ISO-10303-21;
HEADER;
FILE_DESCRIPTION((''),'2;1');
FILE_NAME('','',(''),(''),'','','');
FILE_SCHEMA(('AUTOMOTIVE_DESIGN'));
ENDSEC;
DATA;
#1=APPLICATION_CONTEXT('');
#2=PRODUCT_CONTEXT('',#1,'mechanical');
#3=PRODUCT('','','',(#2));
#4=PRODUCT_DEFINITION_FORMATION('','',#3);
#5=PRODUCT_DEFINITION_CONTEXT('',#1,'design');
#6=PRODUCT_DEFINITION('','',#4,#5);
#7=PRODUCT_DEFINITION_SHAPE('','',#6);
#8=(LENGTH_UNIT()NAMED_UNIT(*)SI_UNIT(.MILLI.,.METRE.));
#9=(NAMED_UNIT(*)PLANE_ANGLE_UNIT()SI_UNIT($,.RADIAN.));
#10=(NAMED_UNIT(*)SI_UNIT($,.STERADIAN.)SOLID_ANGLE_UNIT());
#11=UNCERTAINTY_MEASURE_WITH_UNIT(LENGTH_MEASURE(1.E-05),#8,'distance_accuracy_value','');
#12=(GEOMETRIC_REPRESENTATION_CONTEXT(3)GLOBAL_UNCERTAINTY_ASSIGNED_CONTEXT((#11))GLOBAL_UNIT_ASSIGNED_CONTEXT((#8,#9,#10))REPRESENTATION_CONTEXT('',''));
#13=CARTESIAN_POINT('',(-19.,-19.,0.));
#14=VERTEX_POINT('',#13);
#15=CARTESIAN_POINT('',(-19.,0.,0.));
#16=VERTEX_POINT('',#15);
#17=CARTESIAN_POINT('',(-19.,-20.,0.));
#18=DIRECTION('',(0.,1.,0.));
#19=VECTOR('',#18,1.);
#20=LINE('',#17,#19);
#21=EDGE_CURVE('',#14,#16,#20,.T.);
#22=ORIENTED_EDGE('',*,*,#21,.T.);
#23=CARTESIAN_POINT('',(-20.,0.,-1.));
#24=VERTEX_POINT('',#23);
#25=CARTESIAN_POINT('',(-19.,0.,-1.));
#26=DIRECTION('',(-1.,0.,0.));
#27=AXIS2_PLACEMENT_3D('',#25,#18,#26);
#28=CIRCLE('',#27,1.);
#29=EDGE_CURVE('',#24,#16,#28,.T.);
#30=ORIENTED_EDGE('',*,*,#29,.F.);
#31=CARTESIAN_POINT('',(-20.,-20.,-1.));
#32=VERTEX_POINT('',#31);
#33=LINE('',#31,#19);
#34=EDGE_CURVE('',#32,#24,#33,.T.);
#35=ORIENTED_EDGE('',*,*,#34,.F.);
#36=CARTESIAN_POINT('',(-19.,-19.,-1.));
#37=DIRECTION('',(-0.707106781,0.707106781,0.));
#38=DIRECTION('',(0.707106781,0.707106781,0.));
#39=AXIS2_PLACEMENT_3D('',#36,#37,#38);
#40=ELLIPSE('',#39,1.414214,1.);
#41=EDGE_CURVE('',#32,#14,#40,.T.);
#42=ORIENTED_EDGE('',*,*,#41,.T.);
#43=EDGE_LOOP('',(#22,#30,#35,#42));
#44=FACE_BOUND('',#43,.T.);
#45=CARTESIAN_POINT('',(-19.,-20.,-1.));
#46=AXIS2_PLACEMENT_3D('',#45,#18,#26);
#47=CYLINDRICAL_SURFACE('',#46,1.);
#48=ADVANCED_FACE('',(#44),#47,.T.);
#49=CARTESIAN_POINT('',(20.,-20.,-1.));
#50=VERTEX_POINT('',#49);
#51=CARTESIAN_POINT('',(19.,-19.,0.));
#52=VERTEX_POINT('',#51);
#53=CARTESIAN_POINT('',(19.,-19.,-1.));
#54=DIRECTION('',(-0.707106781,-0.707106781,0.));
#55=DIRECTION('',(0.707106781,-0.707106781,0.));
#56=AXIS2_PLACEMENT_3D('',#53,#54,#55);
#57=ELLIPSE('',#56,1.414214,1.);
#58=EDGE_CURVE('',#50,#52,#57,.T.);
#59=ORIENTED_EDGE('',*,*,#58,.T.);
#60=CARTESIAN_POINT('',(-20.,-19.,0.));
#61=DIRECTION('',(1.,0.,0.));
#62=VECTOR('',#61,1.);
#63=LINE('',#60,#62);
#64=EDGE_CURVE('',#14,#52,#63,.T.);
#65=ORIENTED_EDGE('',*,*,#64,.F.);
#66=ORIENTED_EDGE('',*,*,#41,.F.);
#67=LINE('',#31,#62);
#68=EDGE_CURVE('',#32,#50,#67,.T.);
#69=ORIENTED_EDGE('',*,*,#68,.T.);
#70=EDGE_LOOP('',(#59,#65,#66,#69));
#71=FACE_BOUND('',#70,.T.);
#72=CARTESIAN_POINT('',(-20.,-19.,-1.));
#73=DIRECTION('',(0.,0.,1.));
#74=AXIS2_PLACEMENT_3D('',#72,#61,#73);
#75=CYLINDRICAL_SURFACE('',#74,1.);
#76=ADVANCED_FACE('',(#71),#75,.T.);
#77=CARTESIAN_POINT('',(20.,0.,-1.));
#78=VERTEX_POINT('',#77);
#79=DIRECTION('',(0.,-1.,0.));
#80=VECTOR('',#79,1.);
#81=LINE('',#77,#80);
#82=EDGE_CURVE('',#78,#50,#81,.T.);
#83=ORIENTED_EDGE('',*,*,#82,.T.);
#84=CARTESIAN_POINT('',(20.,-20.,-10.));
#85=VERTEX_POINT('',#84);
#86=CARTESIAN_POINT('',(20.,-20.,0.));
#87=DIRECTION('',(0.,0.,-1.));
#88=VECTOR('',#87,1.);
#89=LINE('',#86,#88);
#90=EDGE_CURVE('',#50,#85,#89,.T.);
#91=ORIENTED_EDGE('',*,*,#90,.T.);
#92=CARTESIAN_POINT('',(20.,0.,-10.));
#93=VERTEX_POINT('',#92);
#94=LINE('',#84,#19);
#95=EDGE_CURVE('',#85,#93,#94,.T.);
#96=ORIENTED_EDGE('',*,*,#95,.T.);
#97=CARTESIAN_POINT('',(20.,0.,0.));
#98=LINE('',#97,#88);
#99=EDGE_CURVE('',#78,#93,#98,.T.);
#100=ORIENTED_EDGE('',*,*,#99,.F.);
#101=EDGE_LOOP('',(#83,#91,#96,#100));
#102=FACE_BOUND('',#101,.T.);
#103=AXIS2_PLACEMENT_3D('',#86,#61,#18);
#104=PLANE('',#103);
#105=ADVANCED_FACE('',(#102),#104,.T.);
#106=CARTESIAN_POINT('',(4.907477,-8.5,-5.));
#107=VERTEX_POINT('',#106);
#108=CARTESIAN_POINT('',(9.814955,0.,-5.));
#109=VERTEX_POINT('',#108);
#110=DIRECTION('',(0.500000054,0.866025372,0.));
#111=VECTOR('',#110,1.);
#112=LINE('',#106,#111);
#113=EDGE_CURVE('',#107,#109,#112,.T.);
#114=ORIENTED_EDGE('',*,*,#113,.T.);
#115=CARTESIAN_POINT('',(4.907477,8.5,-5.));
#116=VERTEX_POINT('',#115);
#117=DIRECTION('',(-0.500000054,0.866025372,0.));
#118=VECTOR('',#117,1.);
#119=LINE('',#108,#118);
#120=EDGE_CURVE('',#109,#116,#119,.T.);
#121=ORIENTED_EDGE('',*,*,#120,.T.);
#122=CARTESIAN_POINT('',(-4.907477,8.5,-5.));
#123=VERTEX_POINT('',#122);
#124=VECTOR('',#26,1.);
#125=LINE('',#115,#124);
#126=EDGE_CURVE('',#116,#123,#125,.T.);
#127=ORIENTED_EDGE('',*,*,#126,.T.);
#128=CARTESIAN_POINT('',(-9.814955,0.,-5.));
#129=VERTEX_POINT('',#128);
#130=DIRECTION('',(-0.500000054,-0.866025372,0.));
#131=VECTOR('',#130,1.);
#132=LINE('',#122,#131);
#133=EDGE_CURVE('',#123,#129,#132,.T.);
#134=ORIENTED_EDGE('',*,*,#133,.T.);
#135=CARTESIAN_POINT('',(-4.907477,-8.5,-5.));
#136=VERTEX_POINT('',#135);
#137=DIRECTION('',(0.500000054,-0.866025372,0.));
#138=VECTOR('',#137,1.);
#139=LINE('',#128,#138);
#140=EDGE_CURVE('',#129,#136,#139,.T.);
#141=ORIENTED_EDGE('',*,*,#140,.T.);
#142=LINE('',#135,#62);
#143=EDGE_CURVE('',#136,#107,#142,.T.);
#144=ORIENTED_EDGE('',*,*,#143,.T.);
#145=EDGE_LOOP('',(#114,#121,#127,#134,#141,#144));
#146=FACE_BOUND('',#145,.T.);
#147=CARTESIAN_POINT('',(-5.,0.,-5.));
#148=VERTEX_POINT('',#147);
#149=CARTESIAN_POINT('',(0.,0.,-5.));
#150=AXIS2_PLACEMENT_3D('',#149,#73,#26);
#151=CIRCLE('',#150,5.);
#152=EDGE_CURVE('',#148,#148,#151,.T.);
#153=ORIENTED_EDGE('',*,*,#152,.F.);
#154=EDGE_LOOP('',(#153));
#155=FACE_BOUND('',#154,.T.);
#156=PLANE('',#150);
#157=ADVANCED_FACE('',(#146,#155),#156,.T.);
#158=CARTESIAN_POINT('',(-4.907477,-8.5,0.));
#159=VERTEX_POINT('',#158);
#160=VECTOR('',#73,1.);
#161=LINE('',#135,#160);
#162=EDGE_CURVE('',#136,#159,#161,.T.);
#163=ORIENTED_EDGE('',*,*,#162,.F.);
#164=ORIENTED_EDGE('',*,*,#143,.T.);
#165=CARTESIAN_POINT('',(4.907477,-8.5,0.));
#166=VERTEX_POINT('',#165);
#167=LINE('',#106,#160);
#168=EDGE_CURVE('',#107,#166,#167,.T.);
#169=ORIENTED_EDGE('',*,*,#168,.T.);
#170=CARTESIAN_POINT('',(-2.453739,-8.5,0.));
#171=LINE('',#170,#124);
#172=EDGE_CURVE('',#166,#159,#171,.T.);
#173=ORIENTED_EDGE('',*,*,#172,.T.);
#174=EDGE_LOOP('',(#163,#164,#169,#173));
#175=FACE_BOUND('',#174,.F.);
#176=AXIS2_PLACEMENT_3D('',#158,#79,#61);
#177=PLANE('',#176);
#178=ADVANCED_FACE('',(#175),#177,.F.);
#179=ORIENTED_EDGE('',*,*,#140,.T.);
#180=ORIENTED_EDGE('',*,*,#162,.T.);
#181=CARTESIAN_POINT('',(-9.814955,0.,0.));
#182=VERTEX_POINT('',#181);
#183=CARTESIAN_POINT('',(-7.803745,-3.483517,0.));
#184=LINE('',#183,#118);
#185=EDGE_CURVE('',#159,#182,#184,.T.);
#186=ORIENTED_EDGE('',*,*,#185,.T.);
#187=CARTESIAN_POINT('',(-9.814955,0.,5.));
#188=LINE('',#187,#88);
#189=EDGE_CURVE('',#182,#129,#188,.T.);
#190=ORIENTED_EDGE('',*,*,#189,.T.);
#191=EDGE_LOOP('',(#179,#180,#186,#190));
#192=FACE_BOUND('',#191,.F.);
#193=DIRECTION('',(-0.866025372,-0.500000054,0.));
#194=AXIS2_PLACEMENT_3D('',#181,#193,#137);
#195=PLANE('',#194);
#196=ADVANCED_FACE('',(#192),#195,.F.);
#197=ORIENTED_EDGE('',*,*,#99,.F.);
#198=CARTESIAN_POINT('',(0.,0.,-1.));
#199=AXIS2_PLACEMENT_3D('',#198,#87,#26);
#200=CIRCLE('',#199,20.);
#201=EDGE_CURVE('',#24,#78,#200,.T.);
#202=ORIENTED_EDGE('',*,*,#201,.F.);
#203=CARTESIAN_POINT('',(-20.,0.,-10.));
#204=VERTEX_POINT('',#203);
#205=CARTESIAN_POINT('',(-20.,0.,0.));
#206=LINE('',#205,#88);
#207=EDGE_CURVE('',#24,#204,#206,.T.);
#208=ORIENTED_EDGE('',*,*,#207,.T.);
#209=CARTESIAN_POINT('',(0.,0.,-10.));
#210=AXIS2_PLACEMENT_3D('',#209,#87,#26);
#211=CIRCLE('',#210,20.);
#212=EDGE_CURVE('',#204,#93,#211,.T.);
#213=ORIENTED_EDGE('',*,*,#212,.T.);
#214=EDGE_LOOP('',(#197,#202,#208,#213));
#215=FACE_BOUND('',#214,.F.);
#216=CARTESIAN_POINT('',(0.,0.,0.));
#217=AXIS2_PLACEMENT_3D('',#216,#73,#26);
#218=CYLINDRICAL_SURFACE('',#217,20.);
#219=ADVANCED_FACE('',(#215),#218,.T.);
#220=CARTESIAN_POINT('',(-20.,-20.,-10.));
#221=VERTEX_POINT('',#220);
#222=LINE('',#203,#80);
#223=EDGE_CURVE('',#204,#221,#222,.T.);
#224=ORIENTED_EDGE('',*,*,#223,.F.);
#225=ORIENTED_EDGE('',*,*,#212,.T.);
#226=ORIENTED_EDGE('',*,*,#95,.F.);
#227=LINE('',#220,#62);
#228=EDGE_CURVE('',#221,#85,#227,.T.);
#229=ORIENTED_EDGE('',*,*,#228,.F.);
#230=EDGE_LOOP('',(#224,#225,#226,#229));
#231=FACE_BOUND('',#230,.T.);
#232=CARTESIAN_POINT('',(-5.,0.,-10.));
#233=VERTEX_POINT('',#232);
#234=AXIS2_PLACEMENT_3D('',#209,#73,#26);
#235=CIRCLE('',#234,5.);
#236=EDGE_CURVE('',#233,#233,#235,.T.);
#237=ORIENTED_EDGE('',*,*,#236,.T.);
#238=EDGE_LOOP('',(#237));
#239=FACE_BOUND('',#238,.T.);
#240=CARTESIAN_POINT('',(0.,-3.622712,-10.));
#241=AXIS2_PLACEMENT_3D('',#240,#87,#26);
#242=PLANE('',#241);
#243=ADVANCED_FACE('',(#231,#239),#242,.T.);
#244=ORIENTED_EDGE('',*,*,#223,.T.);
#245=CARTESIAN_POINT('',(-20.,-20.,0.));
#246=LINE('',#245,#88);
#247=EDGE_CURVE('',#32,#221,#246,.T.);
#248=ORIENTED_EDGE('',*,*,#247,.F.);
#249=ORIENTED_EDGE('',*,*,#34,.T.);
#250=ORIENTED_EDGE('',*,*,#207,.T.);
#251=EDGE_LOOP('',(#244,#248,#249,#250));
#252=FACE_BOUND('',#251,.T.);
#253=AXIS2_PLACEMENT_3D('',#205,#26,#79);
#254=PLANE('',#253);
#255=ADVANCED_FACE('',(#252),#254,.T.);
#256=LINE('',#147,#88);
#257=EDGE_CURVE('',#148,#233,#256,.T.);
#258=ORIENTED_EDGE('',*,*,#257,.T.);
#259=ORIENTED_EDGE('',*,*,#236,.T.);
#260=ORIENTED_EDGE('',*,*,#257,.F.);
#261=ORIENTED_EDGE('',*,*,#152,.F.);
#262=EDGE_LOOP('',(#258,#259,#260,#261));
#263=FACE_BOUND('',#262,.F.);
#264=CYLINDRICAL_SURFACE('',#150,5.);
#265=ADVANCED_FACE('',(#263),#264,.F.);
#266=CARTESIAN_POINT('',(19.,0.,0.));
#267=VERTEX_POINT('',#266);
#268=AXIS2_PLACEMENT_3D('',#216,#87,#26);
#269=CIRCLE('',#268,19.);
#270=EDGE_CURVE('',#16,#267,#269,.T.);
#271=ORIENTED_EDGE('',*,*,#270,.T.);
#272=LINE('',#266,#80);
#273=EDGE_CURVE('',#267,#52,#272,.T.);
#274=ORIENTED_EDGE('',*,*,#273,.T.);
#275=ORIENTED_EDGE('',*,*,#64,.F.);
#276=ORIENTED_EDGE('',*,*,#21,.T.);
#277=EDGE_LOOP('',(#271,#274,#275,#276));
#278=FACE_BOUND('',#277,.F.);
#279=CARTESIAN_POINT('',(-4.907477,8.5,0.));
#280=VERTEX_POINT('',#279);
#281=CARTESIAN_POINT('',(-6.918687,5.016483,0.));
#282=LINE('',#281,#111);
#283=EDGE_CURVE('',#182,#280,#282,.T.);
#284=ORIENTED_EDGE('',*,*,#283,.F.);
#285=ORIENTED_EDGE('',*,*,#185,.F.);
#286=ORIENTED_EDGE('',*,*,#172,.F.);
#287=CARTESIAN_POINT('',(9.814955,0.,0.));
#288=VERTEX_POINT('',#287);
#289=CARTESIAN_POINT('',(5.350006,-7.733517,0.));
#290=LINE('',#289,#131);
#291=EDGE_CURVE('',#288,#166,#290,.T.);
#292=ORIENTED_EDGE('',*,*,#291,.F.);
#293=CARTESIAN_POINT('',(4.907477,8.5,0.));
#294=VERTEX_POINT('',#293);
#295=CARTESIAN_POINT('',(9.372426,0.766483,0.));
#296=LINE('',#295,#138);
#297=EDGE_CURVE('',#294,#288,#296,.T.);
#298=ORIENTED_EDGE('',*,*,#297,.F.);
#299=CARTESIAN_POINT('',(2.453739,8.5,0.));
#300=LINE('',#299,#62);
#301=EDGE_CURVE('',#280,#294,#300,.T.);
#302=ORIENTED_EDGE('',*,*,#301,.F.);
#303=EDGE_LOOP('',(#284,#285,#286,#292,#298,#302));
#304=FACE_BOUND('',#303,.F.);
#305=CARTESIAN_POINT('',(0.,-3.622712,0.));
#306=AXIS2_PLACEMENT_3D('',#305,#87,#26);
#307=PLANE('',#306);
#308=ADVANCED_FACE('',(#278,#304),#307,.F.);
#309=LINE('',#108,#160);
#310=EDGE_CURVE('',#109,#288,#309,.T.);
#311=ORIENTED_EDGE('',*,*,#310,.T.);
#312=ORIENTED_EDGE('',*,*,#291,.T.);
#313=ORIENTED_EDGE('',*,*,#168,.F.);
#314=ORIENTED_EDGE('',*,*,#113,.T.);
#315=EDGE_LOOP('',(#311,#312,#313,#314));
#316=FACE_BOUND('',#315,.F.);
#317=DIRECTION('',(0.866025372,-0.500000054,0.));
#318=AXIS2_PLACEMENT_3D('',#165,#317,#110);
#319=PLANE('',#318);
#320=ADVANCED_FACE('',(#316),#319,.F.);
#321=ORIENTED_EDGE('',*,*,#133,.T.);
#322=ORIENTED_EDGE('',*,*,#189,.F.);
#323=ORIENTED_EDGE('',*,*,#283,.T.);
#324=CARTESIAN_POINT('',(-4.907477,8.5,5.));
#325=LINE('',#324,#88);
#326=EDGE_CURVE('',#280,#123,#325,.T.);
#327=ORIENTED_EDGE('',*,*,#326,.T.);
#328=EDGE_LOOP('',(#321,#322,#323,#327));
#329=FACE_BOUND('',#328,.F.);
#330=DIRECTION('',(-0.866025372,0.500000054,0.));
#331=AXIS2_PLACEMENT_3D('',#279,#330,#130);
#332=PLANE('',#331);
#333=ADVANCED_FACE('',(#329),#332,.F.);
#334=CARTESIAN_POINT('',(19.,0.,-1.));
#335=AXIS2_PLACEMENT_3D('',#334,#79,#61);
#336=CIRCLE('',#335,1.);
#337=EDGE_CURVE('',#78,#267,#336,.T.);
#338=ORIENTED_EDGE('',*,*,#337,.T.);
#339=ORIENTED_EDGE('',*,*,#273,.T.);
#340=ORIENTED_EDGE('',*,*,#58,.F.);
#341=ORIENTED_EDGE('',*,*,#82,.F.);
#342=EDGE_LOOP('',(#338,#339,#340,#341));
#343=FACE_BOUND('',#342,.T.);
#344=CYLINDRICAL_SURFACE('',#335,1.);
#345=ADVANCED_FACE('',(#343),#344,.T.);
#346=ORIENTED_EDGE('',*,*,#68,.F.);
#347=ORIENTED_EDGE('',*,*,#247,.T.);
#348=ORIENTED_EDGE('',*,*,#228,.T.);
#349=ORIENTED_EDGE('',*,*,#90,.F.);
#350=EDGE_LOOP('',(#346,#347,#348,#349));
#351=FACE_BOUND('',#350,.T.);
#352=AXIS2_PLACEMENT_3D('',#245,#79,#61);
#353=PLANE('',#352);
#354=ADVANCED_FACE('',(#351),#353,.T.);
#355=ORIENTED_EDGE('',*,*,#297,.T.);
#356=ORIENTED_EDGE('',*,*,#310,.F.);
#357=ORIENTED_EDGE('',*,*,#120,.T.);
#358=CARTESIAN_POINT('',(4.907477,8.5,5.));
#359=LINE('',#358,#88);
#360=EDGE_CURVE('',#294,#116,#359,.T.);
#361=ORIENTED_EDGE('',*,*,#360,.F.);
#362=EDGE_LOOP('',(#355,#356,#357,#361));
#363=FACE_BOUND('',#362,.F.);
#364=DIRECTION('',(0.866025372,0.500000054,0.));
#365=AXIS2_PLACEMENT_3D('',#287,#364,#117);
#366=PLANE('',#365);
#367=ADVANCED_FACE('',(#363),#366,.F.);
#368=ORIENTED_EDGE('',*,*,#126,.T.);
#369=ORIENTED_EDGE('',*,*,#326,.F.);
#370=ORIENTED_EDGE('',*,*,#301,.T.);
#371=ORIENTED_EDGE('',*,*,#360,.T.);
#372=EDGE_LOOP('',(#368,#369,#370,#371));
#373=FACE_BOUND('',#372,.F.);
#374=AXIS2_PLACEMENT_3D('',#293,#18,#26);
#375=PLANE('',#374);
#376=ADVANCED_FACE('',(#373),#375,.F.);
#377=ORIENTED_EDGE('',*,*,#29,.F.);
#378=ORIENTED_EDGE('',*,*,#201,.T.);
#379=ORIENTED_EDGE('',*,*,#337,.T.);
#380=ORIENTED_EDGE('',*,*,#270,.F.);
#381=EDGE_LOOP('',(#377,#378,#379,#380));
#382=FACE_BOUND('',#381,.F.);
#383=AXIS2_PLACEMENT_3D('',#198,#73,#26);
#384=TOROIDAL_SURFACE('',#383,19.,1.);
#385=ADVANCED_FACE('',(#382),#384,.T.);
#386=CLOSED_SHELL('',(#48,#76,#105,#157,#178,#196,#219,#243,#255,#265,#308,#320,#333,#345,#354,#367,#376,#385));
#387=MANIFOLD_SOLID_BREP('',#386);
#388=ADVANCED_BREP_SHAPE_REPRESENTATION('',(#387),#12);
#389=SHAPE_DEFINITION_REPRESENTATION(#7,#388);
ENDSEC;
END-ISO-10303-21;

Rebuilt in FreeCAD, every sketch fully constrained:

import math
import FreeCAD as App
import Part
import Sketcher

V = App.Vector
Q = App.Units.Quantity


def edges_at(feature, points):
    """Names of the edges that pass closest to the given points."""
    edges = feature.Shape.Edges
    near = lambda p: min(range(len(edges)), key=lambda i: edges[i].distToShape(Part.Vertex(*p))[0])
    return sorted({f"Edge{near(p) + 1}" for p in points})


def add_polygon(sketch, points):
    """Adds a closed chain of lines whose ends are joined by coincident constraints."""
    first, n = sketch.GeometryCount, len(points)
    for a, b in zip(points, points[1:] + points[:1]):
        sketch.addGeometry(Part.LineSegment(App.Vector(*a, 0), App.Vector(*b, 0)), False)
    for i in range(n):
        sketch.addConstraint(Sketcher.Constraint("Coincident", first + i, 2, first + (i + 1) % n, 1))

doc = App.newDocument("Part")
body = doc.addObject("PartDesign::Body", "Body")

# Sketch on XY plane
sketch1 = doc.addObject("Sketcher::SketchObject", "Sketch")
body.addObject(sketch1)
sketch1.AttachmentSupport = (doc.XY_Plane, [""])
sketch1.MapMode = "FlatFace"
sketch1.AttachmentOffset = App.Placement(V(0, 0, 5), App.Rotation())
sketch1.addGeometry(Part.Circle(V(0, 0, 0), V(0, 0, 1), 5), False)
sketch1.addConstraint([
    Sketcher.Constraint("Coincident", 0, 3, -1, 1),
    Sketcher.Constraint("Diameter", 0, Q("10 mm")),
])
pad1 = doc.addObject("PartDesign::Pad", "Pad")
body.addObject(pad1)
pad1.Profile = sketch1
pad1.Length = 10
body2 = doc.addObject("PartDesign::Body", "Body001")

# Sketch on XY plane
sketch2 = doc.addObject("Sketcher::SketchObject", "Sketch001")
body2.addObject(sketch2)
sketch2.AttachmentSupport = (doc.getObject("XY_Plane001"), [""])
sketch2.MapMode = "FlatFace"
add_polygon(sketch2, [(10, 0), (5, -8), (-5, -8), (-10, 0), (-5, 8), (5, 8)])  # lines 0-5
sketch2.addConstraint([
    Sketcher.Constraint("Horizontal", 1),
    Sketcher.Constraint("Horizontal", 4),
    Sketcher.Constraint("Symmetric", 0, 2, 3, 2, -1, 1),
    Sketcher.Constraint("Symmetric", 2, 2, 5, 2, -1, 1),
    Sketcher.Constraint("PointOnObject", 2, 2, -1),
    Sketcher.Constraint("Parallel", 2, 5),
    Sketcher.Constraint("Vertical", 1, 2, 3, 2),
    Sketcher.Constraint("Angle", 0, Q("-120.000004 deg")),
    Sketcher.Constraint("DistanceY", 1, 2, 3, 2, Q("17 mm")),
    Sketcher.Constraint("DistanceX", 1, 2, 1, 1, Q("9.814954 mm")),
])
pad2 = doc.addObject("PartDesign::Pad", "Pad001")
body2.addObject(pad2)
pad2.Profile = sketch2
pad2.Length = 10
pad2.Midplane = True
body3 = doc.addObject("PartDesign::Body", "Body002")

# Sketch on XY plane
sketch3 = doc.addObject("Sketcher::SketchObject", "Sketch002")
body3.addObject(sketch3)
sketch3.AttachmentSupport = (doc.getObject("XY_Plane002"), [""])
sketch3.MapMode = "FlatFace"
sketch3.addGeometry([
    Part.ArcOfCircle(Part.Circle(V(0, 0, 0), V(0, 0, 1), 20), math.radians(0), math.radians(180)),
    Part.LineSegment(V(-20, 0, 0), V(-20, -20, 0)),
    Part.LineSegment(V(-20, -20, 0), V(20, -20, 0)),
    Part.LineSegment(V(20, -20, 0), V(20, 0, 0)),
], False)
sketch3.addConstraint([
    Sketcher.Constraint("Tangent", 0, 2, 1, 1),
    Sketcher.Constraint("Coincident", 1, 2, 2, 1),
    Sketcher.Constraint("Coincident", 2, 2, 3, 1),
    Sketcher.Constraint("Tangent", 3, 2, 0, 1),
    Sketcher.Constraint("Vertical", 1),
    Sketcher.Constraint("Horizontal", 2),
    Sketcher.Constraint("Vertical", 3),
    Sketcher.Constraint("Coincident", 0, 3, -1, 1),
    Sketcher.Constraint("Radius", 0, Q("20 mm")),
    Sketcher.Constraint("DistanceY", 1, 2, 1, 1, Q("20 mm")),
])
pad3 = doc.addObject("PartDesign::Pad", "Pad002")
body3.addObject(pad3)
pad3.Profile = sketch3
pad3.Length = 10
doc.recompute()

boolean = doc.addObject("PartDesign::Boolean", "Boolean")
body3.addObject(boolean)
boolean.Type = "Cut"
boolean.addObjects([body2])
doc.recompute()

boolean2 = doc.addObject("PartDesign::Boolean", "Boolean001")
body3.addObject(boolean2)
boolean2.Type = "Cut"
boolean2.addObjects([body])
doc.recompute()

fillet = doc.addObject("PartDesign::Fillet", "Fillet")
body3.addObject(fillet)
fillet.Base = (boolean2, edges_at(boolean2, [
    (0, 20, 0),
    (20, -10, 0),
    (0, -20, 0),
    (-20, -10, 0),
]))
fillet.Radius = 1
body4 = doc.addObject("PartDesign::Body", "Body003")
doc.recompute()

body3.Placement = App.Placement(V(0, 0, 0), App.Rotation(V(0, 1, 0), 180))
boolean3 = doc.addObject("PartDesign::Boolean", "Boolean002")
body4.addObject(boolean3)
boolean3.Type = "Fuse"
boolean3.addObjects([body3])

doc.recompute()
